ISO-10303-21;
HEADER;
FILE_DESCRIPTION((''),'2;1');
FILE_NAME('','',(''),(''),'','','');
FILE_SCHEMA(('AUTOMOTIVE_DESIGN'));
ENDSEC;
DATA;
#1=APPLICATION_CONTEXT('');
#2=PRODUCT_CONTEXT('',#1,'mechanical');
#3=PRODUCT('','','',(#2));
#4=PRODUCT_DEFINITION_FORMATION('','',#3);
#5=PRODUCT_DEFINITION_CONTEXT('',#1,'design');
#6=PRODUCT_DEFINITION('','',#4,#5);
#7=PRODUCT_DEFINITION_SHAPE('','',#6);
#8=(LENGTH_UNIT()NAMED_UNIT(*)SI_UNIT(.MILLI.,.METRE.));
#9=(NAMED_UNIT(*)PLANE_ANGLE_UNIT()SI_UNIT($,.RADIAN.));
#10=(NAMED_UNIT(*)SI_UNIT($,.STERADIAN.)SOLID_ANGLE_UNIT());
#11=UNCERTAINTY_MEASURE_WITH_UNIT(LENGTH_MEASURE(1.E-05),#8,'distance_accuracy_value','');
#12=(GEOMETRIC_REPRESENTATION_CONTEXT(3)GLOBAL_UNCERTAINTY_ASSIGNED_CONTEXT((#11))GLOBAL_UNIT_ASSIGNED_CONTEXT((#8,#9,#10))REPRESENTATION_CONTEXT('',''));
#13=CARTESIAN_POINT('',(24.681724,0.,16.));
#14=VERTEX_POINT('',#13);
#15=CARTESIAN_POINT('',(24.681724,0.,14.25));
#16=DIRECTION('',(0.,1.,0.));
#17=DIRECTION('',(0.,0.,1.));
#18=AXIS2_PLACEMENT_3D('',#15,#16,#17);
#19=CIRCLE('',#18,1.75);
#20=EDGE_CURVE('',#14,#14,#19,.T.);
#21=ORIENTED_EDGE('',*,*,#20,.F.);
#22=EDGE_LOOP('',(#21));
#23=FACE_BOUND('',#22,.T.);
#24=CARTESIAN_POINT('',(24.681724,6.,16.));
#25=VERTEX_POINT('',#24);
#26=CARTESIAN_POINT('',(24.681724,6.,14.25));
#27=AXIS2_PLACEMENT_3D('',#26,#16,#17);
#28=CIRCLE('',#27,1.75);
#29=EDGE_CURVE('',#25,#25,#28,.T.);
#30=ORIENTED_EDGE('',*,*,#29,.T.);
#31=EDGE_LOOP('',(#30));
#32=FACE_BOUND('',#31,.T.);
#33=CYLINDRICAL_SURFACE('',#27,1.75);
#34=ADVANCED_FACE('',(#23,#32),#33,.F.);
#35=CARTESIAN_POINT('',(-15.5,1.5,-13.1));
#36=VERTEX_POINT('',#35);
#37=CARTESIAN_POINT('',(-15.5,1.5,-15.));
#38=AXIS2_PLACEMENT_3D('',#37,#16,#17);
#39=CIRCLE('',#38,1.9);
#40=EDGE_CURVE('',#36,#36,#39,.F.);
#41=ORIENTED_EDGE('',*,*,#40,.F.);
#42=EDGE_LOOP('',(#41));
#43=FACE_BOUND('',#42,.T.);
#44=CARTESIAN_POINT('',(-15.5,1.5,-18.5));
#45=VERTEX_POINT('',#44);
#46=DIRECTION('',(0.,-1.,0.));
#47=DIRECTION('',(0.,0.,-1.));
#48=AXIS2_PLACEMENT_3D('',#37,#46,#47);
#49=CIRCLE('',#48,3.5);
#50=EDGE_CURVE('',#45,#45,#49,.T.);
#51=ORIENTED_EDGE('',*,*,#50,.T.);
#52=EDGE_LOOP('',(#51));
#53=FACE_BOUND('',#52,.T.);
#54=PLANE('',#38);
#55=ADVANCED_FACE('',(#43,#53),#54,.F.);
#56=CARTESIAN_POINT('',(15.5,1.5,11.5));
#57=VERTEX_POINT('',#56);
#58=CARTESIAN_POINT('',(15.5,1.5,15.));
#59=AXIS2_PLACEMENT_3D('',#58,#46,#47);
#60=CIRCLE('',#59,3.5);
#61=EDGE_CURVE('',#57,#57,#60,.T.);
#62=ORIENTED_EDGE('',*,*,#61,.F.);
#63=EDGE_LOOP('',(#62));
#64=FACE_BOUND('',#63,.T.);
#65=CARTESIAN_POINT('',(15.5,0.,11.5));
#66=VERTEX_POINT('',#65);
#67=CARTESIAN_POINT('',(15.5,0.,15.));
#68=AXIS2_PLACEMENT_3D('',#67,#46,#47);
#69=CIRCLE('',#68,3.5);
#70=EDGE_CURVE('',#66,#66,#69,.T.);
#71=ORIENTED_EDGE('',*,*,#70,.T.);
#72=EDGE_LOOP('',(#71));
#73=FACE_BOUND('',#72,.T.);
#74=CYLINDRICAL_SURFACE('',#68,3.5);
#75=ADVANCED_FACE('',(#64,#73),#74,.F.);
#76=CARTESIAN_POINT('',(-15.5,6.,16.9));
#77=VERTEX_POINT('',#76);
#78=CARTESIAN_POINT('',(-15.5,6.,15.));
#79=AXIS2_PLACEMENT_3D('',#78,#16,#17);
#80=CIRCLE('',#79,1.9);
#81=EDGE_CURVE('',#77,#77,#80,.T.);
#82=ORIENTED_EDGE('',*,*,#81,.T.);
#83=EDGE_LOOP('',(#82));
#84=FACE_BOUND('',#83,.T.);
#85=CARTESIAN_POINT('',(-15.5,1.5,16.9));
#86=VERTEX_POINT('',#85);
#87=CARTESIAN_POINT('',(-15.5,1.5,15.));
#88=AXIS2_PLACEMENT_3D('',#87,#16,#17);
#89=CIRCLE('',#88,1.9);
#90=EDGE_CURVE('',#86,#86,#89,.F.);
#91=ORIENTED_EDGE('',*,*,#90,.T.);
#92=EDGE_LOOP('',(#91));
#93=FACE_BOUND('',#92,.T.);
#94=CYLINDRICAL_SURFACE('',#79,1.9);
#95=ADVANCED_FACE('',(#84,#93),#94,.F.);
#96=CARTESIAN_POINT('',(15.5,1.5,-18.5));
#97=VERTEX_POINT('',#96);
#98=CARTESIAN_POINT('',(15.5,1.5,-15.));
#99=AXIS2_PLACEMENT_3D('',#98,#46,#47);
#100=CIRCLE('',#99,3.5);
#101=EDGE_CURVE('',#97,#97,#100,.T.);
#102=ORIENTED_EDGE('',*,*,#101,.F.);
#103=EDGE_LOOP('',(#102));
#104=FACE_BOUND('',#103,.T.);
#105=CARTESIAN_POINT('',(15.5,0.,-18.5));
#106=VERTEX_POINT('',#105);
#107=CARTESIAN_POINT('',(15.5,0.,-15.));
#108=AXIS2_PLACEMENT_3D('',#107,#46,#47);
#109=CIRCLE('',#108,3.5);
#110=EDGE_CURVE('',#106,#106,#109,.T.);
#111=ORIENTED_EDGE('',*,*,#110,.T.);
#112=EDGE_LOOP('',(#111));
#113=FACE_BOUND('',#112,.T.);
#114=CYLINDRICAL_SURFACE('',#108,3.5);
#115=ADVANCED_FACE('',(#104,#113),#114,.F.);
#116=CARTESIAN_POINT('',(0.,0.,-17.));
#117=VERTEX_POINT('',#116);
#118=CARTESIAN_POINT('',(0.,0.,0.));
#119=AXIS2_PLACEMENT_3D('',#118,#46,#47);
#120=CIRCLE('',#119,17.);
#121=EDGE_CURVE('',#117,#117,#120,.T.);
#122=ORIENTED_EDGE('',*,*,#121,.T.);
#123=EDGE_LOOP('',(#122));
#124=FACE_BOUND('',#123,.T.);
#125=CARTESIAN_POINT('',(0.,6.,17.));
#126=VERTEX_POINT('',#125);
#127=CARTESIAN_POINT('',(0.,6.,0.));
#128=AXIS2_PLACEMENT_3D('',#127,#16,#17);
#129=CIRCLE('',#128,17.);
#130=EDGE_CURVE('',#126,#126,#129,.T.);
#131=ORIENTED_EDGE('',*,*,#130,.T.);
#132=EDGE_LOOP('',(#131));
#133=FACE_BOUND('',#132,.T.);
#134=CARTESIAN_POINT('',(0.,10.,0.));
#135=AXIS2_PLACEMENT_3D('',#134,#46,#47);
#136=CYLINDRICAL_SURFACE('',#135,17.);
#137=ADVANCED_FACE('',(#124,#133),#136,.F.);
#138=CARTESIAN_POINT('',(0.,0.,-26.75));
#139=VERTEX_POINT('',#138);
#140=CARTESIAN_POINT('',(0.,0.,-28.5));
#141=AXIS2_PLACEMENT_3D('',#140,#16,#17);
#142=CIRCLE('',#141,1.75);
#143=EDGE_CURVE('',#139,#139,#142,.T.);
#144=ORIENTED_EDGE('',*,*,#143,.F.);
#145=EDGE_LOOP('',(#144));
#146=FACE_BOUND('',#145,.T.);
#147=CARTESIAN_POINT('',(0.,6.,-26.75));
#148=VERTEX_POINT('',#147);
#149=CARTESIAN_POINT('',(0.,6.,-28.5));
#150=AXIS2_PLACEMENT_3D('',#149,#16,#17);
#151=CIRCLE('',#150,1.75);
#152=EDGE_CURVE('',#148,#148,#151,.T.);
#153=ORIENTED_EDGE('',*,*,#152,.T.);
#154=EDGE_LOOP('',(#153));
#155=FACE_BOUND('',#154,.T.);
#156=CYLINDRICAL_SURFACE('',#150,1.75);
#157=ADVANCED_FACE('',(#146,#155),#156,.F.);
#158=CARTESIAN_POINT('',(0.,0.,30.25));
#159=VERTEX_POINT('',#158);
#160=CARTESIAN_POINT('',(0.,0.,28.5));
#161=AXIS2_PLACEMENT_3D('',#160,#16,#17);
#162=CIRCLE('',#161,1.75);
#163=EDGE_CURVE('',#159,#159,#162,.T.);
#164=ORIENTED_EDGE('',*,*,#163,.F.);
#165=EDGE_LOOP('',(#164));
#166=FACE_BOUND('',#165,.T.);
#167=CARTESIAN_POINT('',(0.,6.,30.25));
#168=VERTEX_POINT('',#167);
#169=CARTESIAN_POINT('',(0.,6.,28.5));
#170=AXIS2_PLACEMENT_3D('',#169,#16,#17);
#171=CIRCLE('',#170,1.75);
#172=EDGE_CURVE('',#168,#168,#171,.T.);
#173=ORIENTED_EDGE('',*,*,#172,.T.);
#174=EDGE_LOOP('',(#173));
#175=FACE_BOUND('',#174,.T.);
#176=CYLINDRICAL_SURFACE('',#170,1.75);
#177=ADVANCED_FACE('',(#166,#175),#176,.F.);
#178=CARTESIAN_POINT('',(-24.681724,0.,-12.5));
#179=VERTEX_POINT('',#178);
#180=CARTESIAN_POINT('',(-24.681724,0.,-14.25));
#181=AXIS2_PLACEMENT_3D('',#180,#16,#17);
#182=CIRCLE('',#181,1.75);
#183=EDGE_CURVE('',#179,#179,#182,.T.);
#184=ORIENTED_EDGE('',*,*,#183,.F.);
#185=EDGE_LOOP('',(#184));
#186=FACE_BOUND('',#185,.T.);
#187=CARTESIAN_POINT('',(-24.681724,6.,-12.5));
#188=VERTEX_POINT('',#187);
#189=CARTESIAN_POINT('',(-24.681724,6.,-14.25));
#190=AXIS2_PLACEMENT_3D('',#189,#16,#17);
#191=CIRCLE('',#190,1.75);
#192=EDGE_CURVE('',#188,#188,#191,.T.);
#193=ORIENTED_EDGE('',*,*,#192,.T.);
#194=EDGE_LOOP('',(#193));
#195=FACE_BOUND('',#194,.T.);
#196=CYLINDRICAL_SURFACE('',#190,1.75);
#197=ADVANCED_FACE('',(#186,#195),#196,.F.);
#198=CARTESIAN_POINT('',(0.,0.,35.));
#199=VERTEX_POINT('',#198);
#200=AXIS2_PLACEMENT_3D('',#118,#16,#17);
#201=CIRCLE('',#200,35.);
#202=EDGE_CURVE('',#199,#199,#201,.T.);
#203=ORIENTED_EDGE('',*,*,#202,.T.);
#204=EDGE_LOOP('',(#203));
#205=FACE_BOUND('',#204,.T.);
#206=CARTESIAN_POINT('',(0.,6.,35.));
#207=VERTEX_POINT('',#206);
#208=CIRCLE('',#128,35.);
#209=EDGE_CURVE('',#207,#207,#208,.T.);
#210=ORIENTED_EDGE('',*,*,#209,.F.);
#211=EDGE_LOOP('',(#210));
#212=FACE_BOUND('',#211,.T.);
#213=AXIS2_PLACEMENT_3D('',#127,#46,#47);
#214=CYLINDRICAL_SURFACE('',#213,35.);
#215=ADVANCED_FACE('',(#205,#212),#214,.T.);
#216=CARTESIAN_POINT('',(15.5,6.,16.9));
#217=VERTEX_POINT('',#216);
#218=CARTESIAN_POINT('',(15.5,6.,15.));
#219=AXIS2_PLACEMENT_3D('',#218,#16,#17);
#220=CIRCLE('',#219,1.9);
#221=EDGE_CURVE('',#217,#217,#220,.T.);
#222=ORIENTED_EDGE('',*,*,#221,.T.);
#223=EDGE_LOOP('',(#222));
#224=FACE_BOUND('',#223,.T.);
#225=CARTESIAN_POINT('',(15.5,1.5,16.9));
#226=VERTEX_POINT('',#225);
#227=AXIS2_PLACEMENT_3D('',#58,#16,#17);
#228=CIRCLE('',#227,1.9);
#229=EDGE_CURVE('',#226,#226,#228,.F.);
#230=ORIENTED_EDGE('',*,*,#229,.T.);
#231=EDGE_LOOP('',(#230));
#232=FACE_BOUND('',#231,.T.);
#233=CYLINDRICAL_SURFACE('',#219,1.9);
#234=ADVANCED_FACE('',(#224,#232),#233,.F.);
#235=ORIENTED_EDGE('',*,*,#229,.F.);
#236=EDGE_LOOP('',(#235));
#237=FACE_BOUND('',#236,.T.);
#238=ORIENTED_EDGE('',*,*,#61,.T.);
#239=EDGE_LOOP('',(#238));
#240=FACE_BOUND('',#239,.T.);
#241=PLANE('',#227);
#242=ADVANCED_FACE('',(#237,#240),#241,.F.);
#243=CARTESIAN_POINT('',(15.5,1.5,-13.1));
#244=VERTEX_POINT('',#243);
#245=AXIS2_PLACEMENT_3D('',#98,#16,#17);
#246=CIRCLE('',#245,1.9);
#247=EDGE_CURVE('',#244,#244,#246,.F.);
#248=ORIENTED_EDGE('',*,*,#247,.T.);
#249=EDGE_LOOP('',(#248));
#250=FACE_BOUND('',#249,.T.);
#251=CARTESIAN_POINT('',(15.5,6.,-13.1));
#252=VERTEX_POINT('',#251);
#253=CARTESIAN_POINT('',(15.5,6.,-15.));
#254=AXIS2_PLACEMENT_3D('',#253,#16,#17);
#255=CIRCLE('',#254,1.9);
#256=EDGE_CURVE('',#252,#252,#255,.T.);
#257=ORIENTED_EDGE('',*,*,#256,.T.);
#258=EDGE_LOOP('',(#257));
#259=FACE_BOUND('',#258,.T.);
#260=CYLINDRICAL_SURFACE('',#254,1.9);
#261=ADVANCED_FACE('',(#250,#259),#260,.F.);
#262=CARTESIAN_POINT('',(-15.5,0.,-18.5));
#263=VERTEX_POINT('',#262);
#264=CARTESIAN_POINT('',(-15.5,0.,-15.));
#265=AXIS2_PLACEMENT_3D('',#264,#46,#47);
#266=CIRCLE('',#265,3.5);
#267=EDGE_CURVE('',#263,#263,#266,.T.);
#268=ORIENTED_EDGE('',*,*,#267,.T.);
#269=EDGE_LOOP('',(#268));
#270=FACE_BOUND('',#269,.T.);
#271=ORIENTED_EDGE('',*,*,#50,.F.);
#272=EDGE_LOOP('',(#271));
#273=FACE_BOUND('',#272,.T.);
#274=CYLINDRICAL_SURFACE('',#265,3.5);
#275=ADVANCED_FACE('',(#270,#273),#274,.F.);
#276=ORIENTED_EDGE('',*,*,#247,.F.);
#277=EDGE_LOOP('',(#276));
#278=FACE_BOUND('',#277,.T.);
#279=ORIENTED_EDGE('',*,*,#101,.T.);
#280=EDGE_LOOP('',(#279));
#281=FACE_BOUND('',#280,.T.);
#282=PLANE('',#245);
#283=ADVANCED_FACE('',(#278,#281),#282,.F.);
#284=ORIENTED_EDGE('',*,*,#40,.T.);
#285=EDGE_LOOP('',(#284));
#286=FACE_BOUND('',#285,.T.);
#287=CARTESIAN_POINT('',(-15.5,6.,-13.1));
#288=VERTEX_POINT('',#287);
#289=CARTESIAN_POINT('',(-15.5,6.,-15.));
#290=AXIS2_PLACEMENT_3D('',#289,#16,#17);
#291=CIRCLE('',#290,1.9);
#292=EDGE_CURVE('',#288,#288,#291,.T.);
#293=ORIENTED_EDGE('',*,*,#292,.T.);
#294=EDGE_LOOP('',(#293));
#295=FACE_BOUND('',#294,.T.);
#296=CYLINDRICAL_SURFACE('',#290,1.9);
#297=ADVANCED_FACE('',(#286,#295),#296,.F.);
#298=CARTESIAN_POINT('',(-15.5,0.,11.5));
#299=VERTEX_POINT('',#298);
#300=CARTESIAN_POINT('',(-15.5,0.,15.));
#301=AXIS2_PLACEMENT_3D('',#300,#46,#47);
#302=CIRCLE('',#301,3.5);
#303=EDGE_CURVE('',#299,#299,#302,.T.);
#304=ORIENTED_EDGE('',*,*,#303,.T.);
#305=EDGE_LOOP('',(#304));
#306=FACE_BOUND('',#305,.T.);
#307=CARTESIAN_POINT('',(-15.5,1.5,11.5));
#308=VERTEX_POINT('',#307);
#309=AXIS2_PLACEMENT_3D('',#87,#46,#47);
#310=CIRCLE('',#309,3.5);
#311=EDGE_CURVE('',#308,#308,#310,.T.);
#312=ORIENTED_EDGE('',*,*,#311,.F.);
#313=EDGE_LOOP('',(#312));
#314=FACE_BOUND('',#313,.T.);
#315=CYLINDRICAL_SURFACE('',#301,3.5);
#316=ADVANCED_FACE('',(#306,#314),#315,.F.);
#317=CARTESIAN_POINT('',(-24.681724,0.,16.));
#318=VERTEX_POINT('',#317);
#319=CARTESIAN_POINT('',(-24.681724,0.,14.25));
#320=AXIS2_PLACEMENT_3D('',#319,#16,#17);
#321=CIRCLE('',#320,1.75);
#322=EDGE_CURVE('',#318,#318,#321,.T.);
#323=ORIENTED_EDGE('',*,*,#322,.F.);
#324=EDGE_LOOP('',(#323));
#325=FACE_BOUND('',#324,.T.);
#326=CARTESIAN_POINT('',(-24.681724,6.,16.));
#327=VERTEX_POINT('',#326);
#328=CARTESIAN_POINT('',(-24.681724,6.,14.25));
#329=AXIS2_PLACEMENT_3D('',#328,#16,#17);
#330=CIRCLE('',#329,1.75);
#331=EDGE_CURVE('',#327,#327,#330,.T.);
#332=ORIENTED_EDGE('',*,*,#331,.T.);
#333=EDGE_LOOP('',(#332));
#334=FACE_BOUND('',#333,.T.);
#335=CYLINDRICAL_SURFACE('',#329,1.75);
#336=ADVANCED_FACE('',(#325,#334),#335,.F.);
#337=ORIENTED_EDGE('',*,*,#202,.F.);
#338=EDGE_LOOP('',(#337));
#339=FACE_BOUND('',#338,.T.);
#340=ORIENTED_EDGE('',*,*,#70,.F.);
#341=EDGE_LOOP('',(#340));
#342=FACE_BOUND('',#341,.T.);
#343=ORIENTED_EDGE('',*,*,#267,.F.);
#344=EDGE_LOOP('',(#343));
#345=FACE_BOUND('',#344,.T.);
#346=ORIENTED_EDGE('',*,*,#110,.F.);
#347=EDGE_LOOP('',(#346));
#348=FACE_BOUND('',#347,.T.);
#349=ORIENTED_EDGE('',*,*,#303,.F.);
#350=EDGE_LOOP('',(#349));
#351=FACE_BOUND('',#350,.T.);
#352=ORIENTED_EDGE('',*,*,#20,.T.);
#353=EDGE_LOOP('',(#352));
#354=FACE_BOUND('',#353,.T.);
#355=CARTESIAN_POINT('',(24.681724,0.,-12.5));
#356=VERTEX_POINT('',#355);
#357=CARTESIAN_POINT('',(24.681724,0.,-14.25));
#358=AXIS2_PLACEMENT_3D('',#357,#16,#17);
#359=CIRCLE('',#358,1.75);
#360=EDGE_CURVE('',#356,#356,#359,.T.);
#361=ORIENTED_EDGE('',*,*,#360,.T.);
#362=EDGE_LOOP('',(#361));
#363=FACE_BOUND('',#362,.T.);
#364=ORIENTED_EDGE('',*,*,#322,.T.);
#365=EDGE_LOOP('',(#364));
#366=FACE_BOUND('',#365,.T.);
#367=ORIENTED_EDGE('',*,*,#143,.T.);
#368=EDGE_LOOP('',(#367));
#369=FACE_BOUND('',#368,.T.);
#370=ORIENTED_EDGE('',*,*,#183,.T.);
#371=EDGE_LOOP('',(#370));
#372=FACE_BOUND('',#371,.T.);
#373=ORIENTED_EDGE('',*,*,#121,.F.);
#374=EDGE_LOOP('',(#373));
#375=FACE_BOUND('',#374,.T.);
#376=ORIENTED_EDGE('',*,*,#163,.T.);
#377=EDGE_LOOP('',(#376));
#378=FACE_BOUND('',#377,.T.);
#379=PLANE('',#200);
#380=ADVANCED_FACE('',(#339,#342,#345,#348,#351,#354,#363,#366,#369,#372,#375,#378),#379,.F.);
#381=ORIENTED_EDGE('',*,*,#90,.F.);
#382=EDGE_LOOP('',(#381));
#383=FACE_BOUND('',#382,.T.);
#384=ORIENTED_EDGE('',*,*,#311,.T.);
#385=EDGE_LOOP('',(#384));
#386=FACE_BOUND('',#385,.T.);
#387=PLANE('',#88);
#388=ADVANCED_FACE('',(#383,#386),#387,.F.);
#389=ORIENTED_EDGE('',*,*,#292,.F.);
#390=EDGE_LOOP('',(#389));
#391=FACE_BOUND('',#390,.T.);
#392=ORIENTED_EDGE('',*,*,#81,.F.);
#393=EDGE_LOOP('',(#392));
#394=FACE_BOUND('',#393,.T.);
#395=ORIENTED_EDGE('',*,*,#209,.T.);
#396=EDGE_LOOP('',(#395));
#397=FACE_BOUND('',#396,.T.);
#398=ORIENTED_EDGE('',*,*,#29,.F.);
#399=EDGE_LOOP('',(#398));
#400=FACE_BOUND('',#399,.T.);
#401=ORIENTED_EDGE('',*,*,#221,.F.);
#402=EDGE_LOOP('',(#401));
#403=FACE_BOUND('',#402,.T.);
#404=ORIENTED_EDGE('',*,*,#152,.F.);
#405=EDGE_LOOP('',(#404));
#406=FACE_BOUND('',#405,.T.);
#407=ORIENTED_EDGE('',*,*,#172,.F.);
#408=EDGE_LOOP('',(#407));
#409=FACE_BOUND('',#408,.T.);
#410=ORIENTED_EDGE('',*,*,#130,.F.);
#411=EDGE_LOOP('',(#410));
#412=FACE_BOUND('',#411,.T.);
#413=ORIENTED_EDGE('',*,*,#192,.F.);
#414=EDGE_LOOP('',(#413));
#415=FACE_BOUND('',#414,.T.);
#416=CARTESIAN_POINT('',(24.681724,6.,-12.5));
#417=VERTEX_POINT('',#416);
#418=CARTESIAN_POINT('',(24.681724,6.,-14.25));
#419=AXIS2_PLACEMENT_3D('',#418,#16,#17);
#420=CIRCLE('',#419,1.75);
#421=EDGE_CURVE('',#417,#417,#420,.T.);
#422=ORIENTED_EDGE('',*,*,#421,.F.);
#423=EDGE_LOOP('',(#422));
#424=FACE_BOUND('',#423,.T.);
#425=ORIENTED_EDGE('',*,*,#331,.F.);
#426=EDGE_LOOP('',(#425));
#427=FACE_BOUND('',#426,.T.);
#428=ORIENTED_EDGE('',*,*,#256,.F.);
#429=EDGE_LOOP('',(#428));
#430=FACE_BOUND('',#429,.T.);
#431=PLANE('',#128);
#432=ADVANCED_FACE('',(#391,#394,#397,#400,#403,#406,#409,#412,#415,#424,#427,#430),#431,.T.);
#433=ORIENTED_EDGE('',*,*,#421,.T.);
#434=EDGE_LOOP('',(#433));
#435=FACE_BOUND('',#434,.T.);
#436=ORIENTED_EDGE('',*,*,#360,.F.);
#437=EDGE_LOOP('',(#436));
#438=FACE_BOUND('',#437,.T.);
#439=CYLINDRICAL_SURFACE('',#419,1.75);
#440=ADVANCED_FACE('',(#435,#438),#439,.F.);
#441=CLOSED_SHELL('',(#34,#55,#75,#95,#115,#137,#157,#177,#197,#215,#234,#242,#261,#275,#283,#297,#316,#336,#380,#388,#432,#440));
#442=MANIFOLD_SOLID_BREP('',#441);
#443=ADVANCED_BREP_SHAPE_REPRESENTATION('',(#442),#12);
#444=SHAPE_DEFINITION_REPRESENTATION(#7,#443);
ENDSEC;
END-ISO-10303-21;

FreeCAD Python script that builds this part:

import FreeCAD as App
import Part
import Sketcher
from FreeCAD import Vector

doc = App.newDocument("Part")
body = doc.addObject("PartDesign::Body", "Body")

# Sketch on XZ plane
sketch1 = body.newObject("Sketcher::SketchObject", "Sketch")
sketch1.AttachmentSupport = (doc.getObject("XZ_Plane"), [""])
sketch1.MapMode = "FlatFace"
sketch1.addGeometry(Part.Circle(Vector(0, 0, 0), Vector(0, 0, 1), 35), False)
sketch1.addConstraint(Sketcher.Constraint("Coincident", 0, 3, -1, 1))
sketch1.addConstraint(Sketcher.Constraint("Diameter", 0, 70.0))
pad1 = body.newObject("PartDesign::Pad", "Pad")
pad1.Profile = sketch1
pad1.Length = 6
pad1.Reversed = True

# Sketch on XZ plane
sketch2 = body.newObject("Sketcher::SketchObject", "Sketch001")
sketch2.AttachmentSupport = (doc.getObject("XZ_Plane"), [""])
sketch2.MapMode = "FlatFace"
sketch2.AttachmentOffset = App.Placement(Vector(0, 0, -6), App.Rotation())
sketch2.addGeometry(Part.Circle(Vector(0, -28.5, 0), Vector(0, 0, 1), 1.8), False)
sketch2.addConstraint(Sketcher.Constraint("PointOnObject", 0, 3, -2))
sketch2.addConstraint(Sketcher.Constraint("Diameter", 0, 3.5))
sketch2.addConstraint(Sketcher.Constraint("DistanceY", 0, 3, -1, 1, 28.5))
doc.recompute()
hole = body.newObject("PartDesign::Hole", "Hole")
hole.Profile = sketch2
hole.ThreadType = "None"
hole.Diameter = 3.5
hole.DepthType = "ThroughAll"
hole.Reversed = True
doc.recompute()

polarpattern = body.newObject("PartDesign::PolarPattern", "PolarPattern")
polarpattern.Originals = [hole]
polarpattern.Axis = (doc.getObject("Y_Axis"), [""])
polarpattern.Angle = 360
polarpattern.Occurrences = 6
body.Tip = polarpattern

# Sketch on XZ plane
sketch3 = body.newObject("Sketcher::SketchObject", "Sketch002")
sketch3.AttachmentSupport = (doc.getObject("XZ_Plane"), [""])
sketch3.MapMode = "FlatFace"
sketch3.AttachmentOffset = App.Placement(Vector(0, 0, -6), App.Rotation())
sketch3.addGeometry(Part.Circle(Vector(-15.5, -15, 0), Vector(0, 0, 1), 1.9), False)
sketch3.addGeometry(Part.Circle(Vector(15.5, -15, 0), Vector(0, 0, 1), 1.9), False)
sketch3.addGeometry(Part.Circle(Vector(15.5, 15, 0), Vector(0, 0, 1), 1.9), False)
sketch3.addGeometry(Part.Circle(Vector(-15.5, 15, 0), Vector(0, 0, 1), 1.9), False)
sketch3.addConstraint(Sketcher.Constraint("Equal", 0, 1))
sketch3.addConstraint(Sketcher.Constraint("Equal", 1, 2))
sketch3.addConstraint(Sketcher.Constraint("Equal", 2, 3))
sketch3.addConstraint(Sketcher.Constraint("Symmetric", 0, 3, 2, 3, -1, 1))
sketch3.addConstraint(Sketcher.Constraint("Symmetric", 1, 3, 3, 3, -1, 1))
sketch3.addConstraint(Sketcher.Constraint("Symmetric", 0, 3, 1, 3, -2))
sketch3.addConstraint(Sketcher.Constraint("Diameter", 0, 3.8))
sketch3.addConstraint(Sketcher.Constraint("DistanceY", 0, 3, -1, 1, 15.0))
sketch3.addConstraint(Sketcher.Constraint("DistanceX", 0, 3, 1, 3, 31.0))
doc.recompute()
hole2 = body.newObject("PartDesign::Hole", "Hole001")
hole2.Profile = sketch3
hole2.ThreadType = "None"
hole2.Diameter = 3.8
hole2.DepthType = "ThroughAll"
hole2.Reversed = True

# Sketch on XZ plane
sketch4 = body.newObject("Sketcher::SketchObject", "Sketch003")
sketch4.AttachmentSupport = (doc.getObject("XZ_Plane"), [""])
sketch4.MapMode = "FlatFace"
sketch4.AttachmentOffset = App.Placement(Vector(0, 0, -6), App.Rotation())
sketch4.addGeometry(Part.Circle(Vector(0, 0, 0), Vector(0, 0, 1), 11), False)
sketch4.addConstraint(Sketcher.Constraint("Coincident", 0, 3, -1, 1))
sketch4.addConstraint(Sketcher.Constraint("Diameter", 0, 22.0))
pocket1 = body.newObject("PartDesign::Pocket", "Pocket")
pocket1.Profile = sketch4
pocket1.Length = 10
pocket1.Reversed = True

# Sketch on XZ plane
sketch5 = body.newObject("Sketcher::SketchObject", "Sketch004")
sketch5.AttachmentSupport = (doc.getObject("XZ_Plane"), [""])
sketch5.MapMode = "FlatFace"
sketch5.addGeometry(Part.Circle(Vector(15.5, -15, 0), Vector(0, 0, 1), 3.5), False)
sketch5.addGeometry(Part.Circle(Vector(-15.5, -15, 0), Vector(0, 0, 1), 3.5), False)
sketch5.addGeometry(Part.Circle(Vector(-15.5, 15, 0), Vector(0, 0, 1), 3.5), False)
sketch5.addGeometry(Part.Circle(Vector(15.5, 15, 0), Vector(0, 0, 1), 3.5), False)
sketch5.addConstraint(Sketcher.Constraint("Equal", 0, 1))
sketch5.addConstraint(Sketcher.Constraint("Equal", 1, 2))
sketch5.addConstraint(Sketcher.Constraint("Equal", 2, 3))
sketch5.addConstraint(Sketcher.Constraint("Symmetric", 0, 3, 2, 3, -1, 1))
sketch5.addConstraint(Sketcher.Constraint("Symmetric", 1, 3, 3, 3, -1, 1))
sketch5.addConstraint(Sketcher.Constraint("Symmetric", 0, 3, 1, 3, -2))
sketch5.addConstraint(Sketcher.Constraint("Diameter", 0, 7.0))
sketch5.addConstraint(Sketcher.Constraint("DistanceY", 0, 3, -1, 1, 15.0))
sketch5.addConstraint(Sketcher.Constraint("DistanceX", 1, 3, 0, 3, 31.0))
doc.recompute()
hole3 = body.newObject("PartDesign::Hole", "Hole002")
hole3.Profile = sketch5
hole3.ThreadType = "None"
hole3.Diameter = 7
hole3.DepthType = "Dimension"
hole3.Depth = 1.5
hole3.DrillPoint = "Flat"

# Sketch on XZ plane
sketch6 = body.newObject("Sketcher::SketchObject", "Sketch005")
sketch6.AttachmentSupport = (doc.getObject("XZ_Plane"), [""])
sketch6.MapMode = "FlatFace"
sketch6.addGeometry(Part.Circle(Vector(0, 0, 0), Vector(0, 0, 1), 17), False)
sketch6.addConstraint(Sketcher.Constraint("Coincident", 0, 3, -1, 1))
sketch6.addConstraint(Sketcher.Constraint("Diameter", 0, 34.0))
pocket2 = body.newObject("PartDesign::Pocket", "Pocket001")
pocket2.Profile = sketch6
pocket2.Length = 10

doc.recompute()
